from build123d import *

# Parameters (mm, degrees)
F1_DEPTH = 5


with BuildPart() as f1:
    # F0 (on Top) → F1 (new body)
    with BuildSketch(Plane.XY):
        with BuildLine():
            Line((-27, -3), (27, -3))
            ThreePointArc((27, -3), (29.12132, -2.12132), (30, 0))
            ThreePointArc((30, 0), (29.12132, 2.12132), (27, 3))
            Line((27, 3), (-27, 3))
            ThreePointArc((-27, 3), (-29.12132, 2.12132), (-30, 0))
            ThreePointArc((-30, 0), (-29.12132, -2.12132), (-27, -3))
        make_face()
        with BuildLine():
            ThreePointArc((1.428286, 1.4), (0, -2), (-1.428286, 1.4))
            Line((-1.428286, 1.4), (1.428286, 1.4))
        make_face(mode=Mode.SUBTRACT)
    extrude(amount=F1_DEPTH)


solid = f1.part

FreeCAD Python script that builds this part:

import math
import FreeCAD as App
import Part
import Sketcher

V = App.Vector
Q = App.Units.Quantity

doc = App.newDocument("Part")
body = doc.addObject("PartDesign::Body", "Body")

# Sketch on XY plane
sketch1 = body.newObject("Sketcher::SketchObject", "Sketch")
sketch1.AttachmentSupport = (doc.getObject("XY_Plane"), [""])
sketch1.MapMode = "FlatFace"
sketch1.addGeometry(Part.LineSegment(V(-27, -3, 0), V(27, -3, 0)), False)
sketch1.addGeometry(Part.ArcOfCircle(Part.Circle(V(26.999999, 0.000001, 0), V(0, 0, 1), 3.000001), math.radians(-89.999978), math.radians(-0.000022)), False)
sketch1.addGeometry(Part.ArcOfCircle(Part.Circle(V(26.999999, -0.000001, 0), V(0, 0, 1), 3.000001), math.radians(0.000022), math.radians(89.999978)), False)
sketch1.addGeometry(Part.LineSegment(V(27, 3, 0), V(-27, 3, 0)), False)
sketch1.addGeometry(Part.ArcOfCircle(Part.Circle(V(-26.999999, -0.000001, 0), V(0, 0, 1), 3.000001), math.radians(90.000022), math.radians(179.999978)), False)
sketch1.addGeometry(Part.ArcOfCircle(Part.Circle(V(-26.999999, 0.000001, 0), V(0, 0, 1), 3.000001), math.radians(-179.999978), math.radians(-90.000022)), False)
sketch1.addGeometry(Part.LineSegment(V(-1.428286, 1.4, 0), V(1.428286, 1.4, 0)), False)
sketch1.addGeometry(Part.ArcOfCircle(Part.Circle(V(0, 0, 0), V(0, 0, 1), 2), math.radians(135.573005), math.radians(404.426995)), False)
sketch1.addConstraint(Sketcher.Constraint("Tangent", 0, 2, 1, 1))
sketch1.addConstraint(Sketcher.Constraint("Tangent", 1, 2, 2, 1))
sketch1.addConstraint(Sketcher.Constraint("Tangent", 2, 2, 3, 1))
sketch1.addConstraint(Sketcher.Constraint("Tangent", 3, 2, 4, 1))
sketch1.addConstraint(Sketcher.Constraint("Tangent", 4, 2, 5, 1))
sketch1.addConstraint(Sketcher.Constraint("Tangent", 5, 2, 0, 1))
sketch1.addConstraint(Sketcher.Constraint("Coincident", 6, 1, 7, 1))
sketch1.addConstraint(Sketcher.Constraint("Coincident", 7, 2, 6, 2))
sketch1.addConstraint(Sketcher.Constraint("Horizontal", 0))
sketch1.addConstraint(Sketcher.Constraint("Horizontal", 3))
sketch1.addConstraint(Sketcher.Constraint("Horizontal", 6))
sketch1.addConstraint(Sketcher.Constraint("Coincident", 7, 3, -1, 1))
sketch1.addConstraint(Sketcher.Constraint("Equal", 1, 2))
sketch1.addConstraint(Sketcher.Constraint("Equal", 2, 4))
sketch1.addConstraint(Sketcher.Constraint("Symmetric", 1, 3, 4, 3, -1, 1))
sketch1.addConstraint(Sketcher.Constraint("PointOnObject", 1, 2, -1))
sketch1.addConstraint(Sketcher.Constraint("PointOnObject", 4, 2, -1))
sketch1.addConstraint(Sketcher.Constraint("Radius", 1, Q("3.000001 mm")))
sketch1.addConstraint(Sketcher.Constraint("Radius", 7, Q("2 mm")))
sketch1.addConstraint(Sketcher.Constraint("DistanceX", 0, 1, 0, 2, Q("54 mm")))
sketch1.addConstraint(Sketcher.Constraint("DistanceY", -1, 1, 6, 1, Q("1.4 mm")))
pad1 = body.newObject("PartDesign::Pad", "Pad")
pad1.Profile = sketch1
pad1.Length = 5

doc.recompute()
